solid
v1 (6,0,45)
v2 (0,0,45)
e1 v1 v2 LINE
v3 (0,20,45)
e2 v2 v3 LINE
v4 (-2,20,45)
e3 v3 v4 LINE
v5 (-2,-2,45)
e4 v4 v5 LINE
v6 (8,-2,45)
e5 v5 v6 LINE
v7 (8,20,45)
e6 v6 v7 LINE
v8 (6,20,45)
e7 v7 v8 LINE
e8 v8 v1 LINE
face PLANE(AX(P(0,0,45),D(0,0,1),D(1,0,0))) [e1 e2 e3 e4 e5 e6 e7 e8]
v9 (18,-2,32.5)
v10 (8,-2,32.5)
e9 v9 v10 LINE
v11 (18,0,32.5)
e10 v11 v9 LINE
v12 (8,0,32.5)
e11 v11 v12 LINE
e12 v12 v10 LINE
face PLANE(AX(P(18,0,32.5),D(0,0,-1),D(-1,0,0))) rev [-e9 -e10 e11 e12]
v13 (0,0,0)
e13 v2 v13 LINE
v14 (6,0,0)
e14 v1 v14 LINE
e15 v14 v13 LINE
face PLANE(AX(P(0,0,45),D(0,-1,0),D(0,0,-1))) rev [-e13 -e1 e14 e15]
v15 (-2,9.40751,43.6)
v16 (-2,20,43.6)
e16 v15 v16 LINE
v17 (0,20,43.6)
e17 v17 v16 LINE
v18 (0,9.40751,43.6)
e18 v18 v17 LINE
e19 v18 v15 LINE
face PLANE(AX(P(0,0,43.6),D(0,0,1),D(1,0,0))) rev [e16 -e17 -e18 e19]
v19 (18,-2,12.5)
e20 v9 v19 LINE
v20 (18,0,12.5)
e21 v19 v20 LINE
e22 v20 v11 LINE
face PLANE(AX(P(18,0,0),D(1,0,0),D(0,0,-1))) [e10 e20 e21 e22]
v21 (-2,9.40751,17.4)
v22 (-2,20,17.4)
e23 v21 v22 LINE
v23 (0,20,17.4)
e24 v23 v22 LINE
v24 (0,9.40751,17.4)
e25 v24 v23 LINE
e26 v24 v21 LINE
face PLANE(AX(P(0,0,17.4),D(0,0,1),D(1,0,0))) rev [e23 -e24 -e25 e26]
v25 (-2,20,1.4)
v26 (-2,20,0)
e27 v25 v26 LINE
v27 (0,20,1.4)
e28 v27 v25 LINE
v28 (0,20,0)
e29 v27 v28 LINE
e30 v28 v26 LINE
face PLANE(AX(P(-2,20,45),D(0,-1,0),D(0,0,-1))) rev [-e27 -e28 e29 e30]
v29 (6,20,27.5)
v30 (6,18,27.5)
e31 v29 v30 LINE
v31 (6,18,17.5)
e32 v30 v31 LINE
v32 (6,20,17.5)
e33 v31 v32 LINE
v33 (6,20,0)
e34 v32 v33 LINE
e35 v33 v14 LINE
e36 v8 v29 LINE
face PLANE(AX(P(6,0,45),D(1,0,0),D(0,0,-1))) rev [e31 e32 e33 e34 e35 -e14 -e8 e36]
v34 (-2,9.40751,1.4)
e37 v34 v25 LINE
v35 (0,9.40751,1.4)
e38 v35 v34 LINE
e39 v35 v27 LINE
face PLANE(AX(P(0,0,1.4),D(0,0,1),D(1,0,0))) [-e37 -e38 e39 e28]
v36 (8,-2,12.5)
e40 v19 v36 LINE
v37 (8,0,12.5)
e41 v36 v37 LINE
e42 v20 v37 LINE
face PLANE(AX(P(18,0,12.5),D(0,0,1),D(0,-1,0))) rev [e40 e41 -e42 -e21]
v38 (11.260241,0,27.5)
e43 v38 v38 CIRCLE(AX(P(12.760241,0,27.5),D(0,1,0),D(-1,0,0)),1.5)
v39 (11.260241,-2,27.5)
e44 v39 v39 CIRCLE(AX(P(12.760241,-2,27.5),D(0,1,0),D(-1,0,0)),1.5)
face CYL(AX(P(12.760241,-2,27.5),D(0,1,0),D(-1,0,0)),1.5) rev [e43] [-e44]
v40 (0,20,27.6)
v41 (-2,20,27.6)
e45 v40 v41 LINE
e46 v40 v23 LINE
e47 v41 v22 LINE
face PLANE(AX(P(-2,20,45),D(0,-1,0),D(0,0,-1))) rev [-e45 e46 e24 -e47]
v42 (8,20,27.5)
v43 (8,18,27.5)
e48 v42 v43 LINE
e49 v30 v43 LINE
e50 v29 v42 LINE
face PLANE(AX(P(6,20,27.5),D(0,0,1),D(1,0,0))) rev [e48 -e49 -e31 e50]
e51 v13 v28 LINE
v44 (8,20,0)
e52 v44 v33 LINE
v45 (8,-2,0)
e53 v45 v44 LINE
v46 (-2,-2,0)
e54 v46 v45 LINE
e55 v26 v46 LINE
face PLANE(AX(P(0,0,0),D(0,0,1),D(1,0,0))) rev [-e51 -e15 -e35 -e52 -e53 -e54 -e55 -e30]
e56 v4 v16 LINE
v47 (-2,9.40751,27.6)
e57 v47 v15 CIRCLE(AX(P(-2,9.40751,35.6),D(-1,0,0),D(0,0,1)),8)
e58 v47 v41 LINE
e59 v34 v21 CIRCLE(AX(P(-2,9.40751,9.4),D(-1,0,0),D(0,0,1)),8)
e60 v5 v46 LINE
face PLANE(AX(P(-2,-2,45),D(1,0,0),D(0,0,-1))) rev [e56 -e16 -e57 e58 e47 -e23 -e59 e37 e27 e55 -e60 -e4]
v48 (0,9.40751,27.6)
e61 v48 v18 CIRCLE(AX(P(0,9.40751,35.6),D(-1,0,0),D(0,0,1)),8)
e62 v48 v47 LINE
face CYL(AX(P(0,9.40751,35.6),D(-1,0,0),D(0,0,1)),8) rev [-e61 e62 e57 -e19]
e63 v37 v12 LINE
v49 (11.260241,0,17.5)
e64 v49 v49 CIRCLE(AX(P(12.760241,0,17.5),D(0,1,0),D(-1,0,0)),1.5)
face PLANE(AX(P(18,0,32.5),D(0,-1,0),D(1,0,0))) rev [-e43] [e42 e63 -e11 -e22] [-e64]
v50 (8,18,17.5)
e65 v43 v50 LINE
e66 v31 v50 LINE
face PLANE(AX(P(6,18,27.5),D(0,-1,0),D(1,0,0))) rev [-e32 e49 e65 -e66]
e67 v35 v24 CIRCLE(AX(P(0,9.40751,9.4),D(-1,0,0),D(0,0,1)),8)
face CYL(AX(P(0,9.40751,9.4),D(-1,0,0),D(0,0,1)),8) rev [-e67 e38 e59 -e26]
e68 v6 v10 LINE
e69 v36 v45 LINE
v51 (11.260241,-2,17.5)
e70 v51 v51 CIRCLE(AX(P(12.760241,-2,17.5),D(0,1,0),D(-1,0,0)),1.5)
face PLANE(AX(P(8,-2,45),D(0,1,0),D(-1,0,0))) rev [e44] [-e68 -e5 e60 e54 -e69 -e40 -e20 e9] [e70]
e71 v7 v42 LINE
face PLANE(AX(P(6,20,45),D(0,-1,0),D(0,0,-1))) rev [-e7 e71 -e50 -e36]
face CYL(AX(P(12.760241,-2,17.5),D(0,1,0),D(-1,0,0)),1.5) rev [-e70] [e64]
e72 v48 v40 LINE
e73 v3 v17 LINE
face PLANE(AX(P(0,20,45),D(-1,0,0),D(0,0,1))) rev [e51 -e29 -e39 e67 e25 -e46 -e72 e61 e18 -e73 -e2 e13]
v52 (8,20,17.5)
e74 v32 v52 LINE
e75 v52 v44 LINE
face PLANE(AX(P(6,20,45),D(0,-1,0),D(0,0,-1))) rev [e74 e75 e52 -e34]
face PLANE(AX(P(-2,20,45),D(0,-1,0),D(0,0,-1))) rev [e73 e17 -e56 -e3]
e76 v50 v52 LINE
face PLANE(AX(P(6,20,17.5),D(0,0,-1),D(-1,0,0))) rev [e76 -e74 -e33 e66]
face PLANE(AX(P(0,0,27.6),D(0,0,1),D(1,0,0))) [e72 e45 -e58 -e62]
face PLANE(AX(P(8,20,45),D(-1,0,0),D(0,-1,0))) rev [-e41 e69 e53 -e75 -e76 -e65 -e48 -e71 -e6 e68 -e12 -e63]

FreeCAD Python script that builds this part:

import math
import FreeCAD as App
import Part
import Sketcher


def add_polygon(sketch, points):
    """Adds a closed chain of lines whose ends are joined by coincident constraints."""
    first, n = sketch.GeometryCount, len(points)
    for a, b in zip(points, points[1:] + points[:1]):
        sketch.addGeometry(Part.LineSegment(App.Vector(*a, 0), App.Vector(*b, 0)), False)
    for i in range(n):
        sketch.addConstraint(Sketcher.Constraint("Coincident", first + i, 2, first + (i + 1) % n, 1))

doc = App.newDocument("Part")
body = doc.addObject("PartDesign::Body", "Body")

sketch1 = body.newObject("Sketcher::SketchObject", "Sketch")
sketch1.AttachmentSupport = (doc.getObject("XY_Plane"), [""])
sketch1.MapMode = "FlatFace"
add_polygon(sketch1, [(6, 0), (0, 0), (0, 20), (-2, 20), (-2, -2), (8, -2), (8, 20), (6, 20)])
sketch1.addConstraint([
    Sketcher.Constraint("Horizontal", 0),
    Sketcher.Constraint("Vertical", 1),
    Sketcher.Constraint("Horizontal", 2),
    Sketcher.Constraint("Vertical", 3),
    Sketcher.Constraint("Horizontal", 4),
    Sketcher.Constraint("Vertical", 5),
    Sketcher.Constraint("Horizontal", 6),
    Sketcher.Constraint("Vertical", 7),
    Sketcher.Constraint("Coincident", 0, 2, -1, 1),
    Sketcher.Constraint("Horizontal", 2, 2, 5, 2),
    Sketcher.Constraint("Equal", 2, 6),
    Sketcher.Constraint("DistanceX", 0, 2, 0, 1, 6.0),
    Sketcher.Constraint("DistanceX", 2, 2, 2, 1, 2.0),
    Sketcher.Constraint("DistanceY", 1, 1, 1, 2, 20.0),
    Sketcher.Constraint("DistanceY", 3, 2, 3, 1, 22.0),
])
pad1 = body.newObject("PartDesign::Pad", "Pad")
pad1.Profile = sketch1
pad1.Length = 45

sketch2 = body.newObject("Sketcher::SketchObject", "Sketch001")
sketch2.AttachmentSupport = (doc.getObject("YZ_Plane"), [""])
sketch2.MapMode = "FlatFace"
sketch2.AttachmentOffset = App.Placement(App.Vector(0, 0, -2), App.Rotation())
sketch2.addGeometry([
    Part.ArcOfCircle(Part.Circle(App.Vector(9, 36, 0), App.Vector(0, 0, 1), 8), math.radians(90), math.radians(270)),
    Part.LineSegment(App.Vector(9, 44, 0), App.Vector(20, 44, 0)),
    Part.LineSegment(App.Vector(20, 44, 0), App.Vector(20, 28, 0)),
    Part.LineSegment(App.Vector(20, 28, 0), App.Vector(9, 28, 0)),
    Part.LineSegment(App.Vector(9, 17, 0), App.Vector(20, 17, 0)),
    Part.LineSegment(App.Vector(20, 17, 0), App.Vector(20, 1, 0)),
    Part.LineSegment(App.Vector(20, 1, 0), App.Vector(9, 1, 0)),
    Part.ArcOfCircle(Part.Circle(App.Vector(9, 9, 0), App.Vector(0, 0, 1), 8), math.radians(90), math.radians(270)),
], False)
sketch2.addConstraint([
    Sketcher.Constraint("Tangent", 0, 1, 1, 1),
    Sketcher.Constraint("Coincident", 1, 2, 2, 1),
    Sketcher.Constraint("Coincident", 2, 2, 3, 1),
    Sketcher.Constraint("Tangent", 3, 2, 0, 2),
    Sketcher.Constraint("Coincident", 4, 2, 5, 1),
    Sketcher.Constraint("Coincident", 5, 2, 6, 1),
    Sketcher.Constraint("Tangent", 6, 2, 7, 2),
    Sketcher.Constraint("Tangent", 7, 1, 4, 1),
    Sketcher.Constraint("Horizontal", 1),
    Sketcher.Constraint("Vertical", 2),
    Sketcher.Constraint("Horizontal", 3),
    Sketcher.Constraint("Horizontal", 4),
    Sketcher.Constraint("Vertical", 5),
    Sketcher.Constraint("Horizontal", 6),
    Sketcher.Constraint("Equal", 0, 7),
    Sketcher.Constraint("Vertical", 0, 3, 7, 3),
    Sketcher.Constraint("Vertical", 2, 2, 4, 2),
    Sketcher.Constraint("Radius", 0, 8.0),
    Sketcher.Constraint("DistanceX", -1, 1, 1, 2, 20.0),
    Sketcher.Constraint("DistanceY", -1, 1, 0, 3, 35.6),
    Sketcher.Constraint("DistanceY", -1, 1, 7, 3, 9.4),
    Sketcher.Constraint("DistanceX", 1, 1, 1, 2, 10.59249),
])
pocket1 = body.newObject("PartDesign::Pocket", "Pocket")
pocket1.Profile = sketch2
pocket1.Length = 2
pocket1.Reversed = True

sketch3 = body.newObject("Sketcher::SketchObject", "Sketch002")
sketch3.AttachmentSupport = (doc.getObject("YZ_Plane"), [""])
sketch3.MapMode = "FlatFace"
sketch3.AttachmentOffset = App.Placement(App.Vector(0, 0, 8), App.Rotation())
add_polygon(sketch3, [(20, 27.5), (18, 27.5), (18, 17.5), (20, 17.5)])
sketch3.addConstraint([
    Sketcher.Constraint("Horizontal", 0),
    Sketcher.Constraint("Vertical", 1),
    Sketcher.Constraint("Horizontal", 2),
    Sketcher.Constraint("Vertical", 3),
    Sketcher.Constraint("DistanceX", 0, 2, 0, 1, 2.0),
    Sketcher.Constraint("DistanceY", 1, 2, 1, 1, 10.0),
    Sketcher.Constraint("DistanceX", -1, 1, 0, 2, 18.0),
    Sketcher.Constraint("DistanceY", -1, 1, 0, 2, 27.5),
])
pocket2 = body.newObject("PartDesign::Pocket", "Pocket001")
pocket2.Profile = sketch3
pocket2.Length = 2

sketch4 = body.newObject("Sketcher::SketchObject", "Sketch003")
sketch4.AttachmentSupport = (doc.getObject("YZ_Plane"), [""])
sketch4.MapMode = "FlatFace"
sketch4.AttachmentOffset = App.Placement(App.Vector(0, 0, 8), App.Rotation())
add_polygon(sketch4, [(0, 32.5), (-2, 32.5), (-2, 12.5), (0, 12.5)])
sketch4.addConstraint([
    Sketcher.Constraint("Horizontal", 0),
    Sketcher.Constraint("Vertical", 1),
    Sketcher.Constraint("Horizontal", 2),
    Sketcher.Constraint("Vertical", 3),
    Sketcher.Constraint("PointOnObject", 2, 2, -2),
    Sketcher.Constraint("DistanceX", 0, 2, 0, 1, 2.0),
    Sketcher.Constraint("DistanceY", 1, 2, 1, 1, 20.0),
    Sketcher.Constraint("DistanceY", -1, 1, 0, 2, 32.5),
])
pad2 = body.newObject("PartDesign::Pad", "Pad001")
pad2.Profile = sketch4
pad2.Length = 10

sketch5 = body.newObject("Sketcher::SketchObject", "Sketch004")
sketch5.AttachmentSupport = (doc.getObject("XZ_Plane"), [""])
sketch5.MapMode = "FlatFace"
sketch5.addGeometry([
    Part.Circle(App.Vector(12.8, 27.5, 0), App.Vector(0, 0, 1), 1.5),
    Part.Circle(App.Vector(12.8, 17.5, 0), App.Vector(0, 0, 1), 1.5),
], False)
sketch5.addConstraint([
    Sketcher.Constraint("Equal", 0, 1),
    Sketcher.Constraint("Vertical", 0, 3, 1, 3),
    Sketcher.Constraint("Diameter", 0, 3.0),
    Sketcher.Constraint("DistanceY", 1, 3, 0, 3, 10.0),
    Sketcher.Constraint("DistanceY", -1, 1, 0, 3, 27.5),
    Sketcher.Constraint("DistanceX", -1, 1, 0, 3, 12.760241),
])
pocket3 = body.newObject("PartDesign::Pocket", "Pocket002")
pocket3.Profile = sketch5
pocket3.Length = 2
pocket3.Reversed = True

doc.recompute()
